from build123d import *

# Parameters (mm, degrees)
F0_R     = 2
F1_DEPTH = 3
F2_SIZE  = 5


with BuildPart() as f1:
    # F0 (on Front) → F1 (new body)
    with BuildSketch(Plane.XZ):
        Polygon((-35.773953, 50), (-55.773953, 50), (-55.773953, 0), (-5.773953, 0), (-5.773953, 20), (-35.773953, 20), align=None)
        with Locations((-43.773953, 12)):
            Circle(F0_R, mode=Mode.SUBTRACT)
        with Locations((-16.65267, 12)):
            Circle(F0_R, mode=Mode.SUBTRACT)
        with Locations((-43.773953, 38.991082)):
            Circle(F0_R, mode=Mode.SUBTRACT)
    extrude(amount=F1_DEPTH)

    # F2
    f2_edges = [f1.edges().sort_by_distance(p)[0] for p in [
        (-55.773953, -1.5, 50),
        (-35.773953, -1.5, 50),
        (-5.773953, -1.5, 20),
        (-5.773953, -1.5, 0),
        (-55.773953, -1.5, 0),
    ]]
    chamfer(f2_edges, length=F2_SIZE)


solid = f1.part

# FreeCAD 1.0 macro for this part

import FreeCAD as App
import Part
import Sketcher
from FreeCAD import Vector


def edges_at(feature, points):
    """Names of the edges that pass closest to the given points."""
    edges = feature.Shape.Edges
    near = lambda p: min(range(len(edges)), key=lambda i: edges[i].distToShape(Part.Vertex(*p))[0])
    return sorted({f"Edge{near(p) + 1}" for p in points})

doc = App.newDocument("Part")
body = doc.addObject("PartDesign::Body", "Body")

sketch1 = body.newObject("Sketcher::SketchObject", "Sketch")
sketch1.AttachmentSupport = (doc.getObject("XZ_Plane"), [""])
sketch1.MapMode = "FlatFace"
sketch1.addGeometry([
    Part.LineSegment(Vector(-35.8, 50, 0), Vector(-55.8, 50, 0)),
    Part.LineSegment(Vector(-55.8, 50, 0), Vector(-55.8, 0, 0)),
    Part.LineSegment(Vector(-55.8, 0, 0), Vector(-5.8, 0, 0)),
    Part.LineSegment(Vector(-5.8, 0, 0), Vector(-5.8, 20, 0)),
    Part.LineSegment(Vector(-5.8, 20, 0), Vector(-35.8, 20, 0)),
    Part.LineSegment(Vector(-35.8, 20, 0), Vector(-35.8, 50, 0)),
    Part.Circle(Vector(-43.8, 12, 0), Vector(0, 0, 1), 2),
    Part.Circle(Vector(-16.7, 12, 0), Vector(0, 0, 1), 2),
    Part.Circle(Vector(-43.8, 39, 0), Vector(0, 0, 1), 2),
], False)
sketch1.addConstraint([
    Sketcher.Constraint("Coincident", 0, 2, 1, 1),
    Sketcher.Constraint("Coincident", 1, 2, 2, 1),
    Sketcher.Constraint("Coincident", 2, 2, 3, 1),
    Sketcher.Constraint("Coincident", 3, 2, 4, 1),
    Sketcher.Constraint("Coincident", 4, 2, 5, 1),
    Sketcher.Constraint("Coincident", 5, 2, 0, 1),
    Sketcher.Constraint("Horizontal", 0),
    Sketcher.Constraint("Vertical", 1),
    Sketcher.Constraint("Horizontal", 2),
    Sketcher.Constraint("Vertical", 3),
    Sketcher.Constraint("Horizontal", 4),
    Sketcher.Constraint("Vertical", 5),
    Sketcher.Constraint("Equal", 6, 7),
    Sketcher.Constraint("Equal", 7, 8),
    Sketcher.Constraint("PointOnObject", 1, 2, -1),
    Sketcher.Constraint("Horizontal", 6, 3, 7, 3),
    Sketcher.Constraint("Vertical", 6, 3, 8, 3),
    Sketcher.Constraint("Equal", 2, 1),
    Sketcher.Constraint("Equal", 0, 3),
    Sketcher.Constraint("Diameter", 6, 4.0),
    Sketcher.Constraint("DistanceX", 0, 2, 0, 1, 20.0),
    Sketcher.Constraint("DistanceX", 2, 1, 2, 2, 50.0),
    Sketcher.Constraint("DistanceY", -1, 1, 6, 3, 12.0),
    Sketcher.Constraint("DistanceX", 0, 2, 8, 3, 12.0),
    Sketcher.Constraint("DistanceX", 7, 3, -1, 1, 16.65267),
    Sketcher.Constraint("DistanceY", 6, 3, 8, 3, 26.991082),
    Sketcher.Constraint("DistanceX", 6, 3, -1, 1, 43.773953),
])
pad1 = body.newObject("PartDesign::Pad", "Pad")
pad1.Profile = sketch1
pad1.Length = 3
doc.recompute()

chamfer = body.newObject("PartDesign::Chamfer", "Chamfer")
chamfer.Base = (pad1, edges_at(pad1, [
    (-55.774, -1.5, 50),
    (-35.774, -1.5, 50),
    (-5.774, -1.5, 20),
    (-5.774, -1.5, 0),
    (-55.774, -1.5, 0),
]))
chamfer.Size = 5

doc.recompute()
